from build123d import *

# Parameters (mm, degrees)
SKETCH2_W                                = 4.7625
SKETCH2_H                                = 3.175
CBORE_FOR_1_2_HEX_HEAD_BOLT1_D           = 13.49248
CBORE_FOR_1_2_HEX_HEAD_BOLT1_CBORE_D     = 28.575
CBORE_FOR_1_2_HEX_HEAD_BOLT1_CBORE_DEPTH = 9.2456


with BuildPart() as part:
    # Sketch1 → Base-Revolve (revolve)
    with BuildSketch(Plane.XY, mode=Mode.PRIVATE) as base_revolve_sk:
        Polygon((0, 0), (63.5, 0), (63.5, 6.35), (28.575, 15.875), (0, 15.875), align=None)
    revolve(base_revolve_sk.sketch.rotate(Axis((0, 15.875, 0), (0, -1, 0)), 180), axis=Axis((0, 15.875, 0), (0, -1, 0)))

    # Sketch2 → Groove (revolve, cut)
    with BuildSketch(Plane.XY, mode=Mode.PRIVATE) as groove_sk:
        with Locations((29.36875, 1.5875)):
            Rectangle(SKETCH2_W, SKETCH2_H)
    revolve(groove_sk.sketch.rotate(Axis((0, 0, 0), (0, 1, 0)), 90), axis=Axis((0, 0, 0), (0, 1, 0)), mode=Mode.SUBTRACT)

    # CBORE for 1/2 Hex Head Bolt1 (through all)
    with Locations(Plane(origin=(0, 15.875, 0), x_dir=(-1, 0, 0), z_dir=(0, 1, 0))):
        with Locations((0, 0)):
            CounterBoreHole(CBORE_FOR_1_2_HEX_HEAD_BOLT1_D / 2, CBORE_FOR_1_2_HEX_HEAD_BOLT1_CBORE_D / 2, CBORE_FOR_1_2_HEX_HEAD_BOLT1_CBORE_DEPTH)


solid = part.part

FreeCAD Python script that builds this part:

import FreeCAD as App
import Part
import Sketcher
from FreeCAD import Vector
Q = App.Units.Quantity


def add_polygon(sketch, points):
    """Adds a closed chain of lines whose ends are joined by coincident constraints."""
    first, n = sketch.GeometryCount, len(points)
    for a, b in zip(points, points[1:] + points[:1]):
        sketch.addGeometry(Part.LineSegment(App.Vector(*a, 0), App.Vector(*b, 0)), False)
    for i in range(n):
        sketch.addConstraint(Sketcher.Constraint("Coincident", first + i, 2, first + (i + 1) % n, 1))

doc = App.newDocument("Part")
body = doc.addObject("PartDesign::Body", "Body")

# Sketch on XY plane
sketch1 = body.newObject("Sketcher::SketchObject", "Sketch")
sketch1.AttachmentSupport = (doc.getObject("XY_Plane"), [""])
sketch1.MapMode = "FlatFace"
add_polygon(sketch1, [(0, 0), (64, 0), (64, 6), (29, 16), (0, 16)])  # lines 0-4
sketch1.addConstraint([
    Sketcher.Constraint("Horizontal", 0),
    Sketcher.Constraint("Vertical", 1),
    Sketcher.Constraint("Horizontal", 3),
    Sketcher.Constraint("Vertical", 4),
    Sketcher.Constraint("Coincident", 4, 2, -1, 1),
    Sketcher.Constraint("DistanceX", 0, 1, 0, 2, Q("2.5 in")),
    Sketcher.Constraint("DistanceY", 1, 1, 1, 2, Q("0.25 in")),
    Sketcher.Constraint("DistanceX", 3, 2, 3, 1, Q("1.125 in")),
    Sketcher.Constraint("DistanceY", 4, 2, 4, 1, Q("0.625 in")),
])
revolution = body.newObject("PartDesign::Revolution", "Revolution")
revolution.Profile = sketch1
revolution.ReferenceAxis = (sketch1, ["V_Axis"])
revolution.Angle = 360

# Sketch on XY plane
sketch2 = body.newObject("Sketcher::SketchObject", "Sketch001")
sketch2.AttachmentSupport = (doc.getObject("XY_Plane"), [""])
sketch2.MapMode = "FlatFace"
add_polygon(sketch2, [(27, 3.2), (27, 0), (31.8, 0), (31.8, 3.2)])  # lines 0-3
sketch2.addConstraint([
    Sketcher.Constraint("Vertical", 0),
    Sketcher.Constraint("Horizontal", 1),
    Sketcher.Constraint("Vertical", 2),
    Sketcher.Constraint("Horizontal", 3),
    Sketcher.Constraint("PointOnObject", 0, 2, -1),
    Sketcher.Constraint("DistanceX", 1, 1, 1, 2, Q("0.1875 in")),
    Sketcher.Constraint("DistanceY", 0, 2, 0, 1, Q("0.125 in")),
    Sketcher.Constraint("DistanceX", -1, 1, 1, 2, Q("1.25 in")),
])
groove = body.newObject("PartDesign::Groove", "Groove")
groove.Profile = sketch2
groove.ReferenceAxis = (sketch2, ["V_Axis"])
groove.Angle = 360

# Sketch on XZ plane
sketch3 = body.newObject("Sketcher::SketchObject", "Sketch002")
sketch3.AttachmentSupport = (doc.getObject("XZ_Plane"), [""])
sketch3.MapMode = "FlatFace"
sketch3.AttachmentOffset = App.Placement(Vector(0, 0, -0.625 * 25.4), App.Rotation())
sketch3.addGeometry(Part.Circle(Vector(0, 0, 0), Vector(0, 0, 1), 7), False)
sketch3.addConstraint([
    Sketcher.Constraint("Coincident", 0, 3, -1, 1),
    Sketcher.Constraint("Diameter", 0, Q("0.5312 in")),
])
doc.recompute()
hole = body.newObject("PartDesign::Hole", "Hole")
hole.Profile = sketch3
hole.ThreadType = "None"
hole.Diameter = Q("0.5312 in")
hole.DepthType = "ThroughAll"
hole.HoleCutType = "Counterbore"
hole.HoleCutDiameter = Q("1.125 in")
hole.HoleCutDepth = Q("0.364 in")
hole.Reversed = True

doc.recompute()
